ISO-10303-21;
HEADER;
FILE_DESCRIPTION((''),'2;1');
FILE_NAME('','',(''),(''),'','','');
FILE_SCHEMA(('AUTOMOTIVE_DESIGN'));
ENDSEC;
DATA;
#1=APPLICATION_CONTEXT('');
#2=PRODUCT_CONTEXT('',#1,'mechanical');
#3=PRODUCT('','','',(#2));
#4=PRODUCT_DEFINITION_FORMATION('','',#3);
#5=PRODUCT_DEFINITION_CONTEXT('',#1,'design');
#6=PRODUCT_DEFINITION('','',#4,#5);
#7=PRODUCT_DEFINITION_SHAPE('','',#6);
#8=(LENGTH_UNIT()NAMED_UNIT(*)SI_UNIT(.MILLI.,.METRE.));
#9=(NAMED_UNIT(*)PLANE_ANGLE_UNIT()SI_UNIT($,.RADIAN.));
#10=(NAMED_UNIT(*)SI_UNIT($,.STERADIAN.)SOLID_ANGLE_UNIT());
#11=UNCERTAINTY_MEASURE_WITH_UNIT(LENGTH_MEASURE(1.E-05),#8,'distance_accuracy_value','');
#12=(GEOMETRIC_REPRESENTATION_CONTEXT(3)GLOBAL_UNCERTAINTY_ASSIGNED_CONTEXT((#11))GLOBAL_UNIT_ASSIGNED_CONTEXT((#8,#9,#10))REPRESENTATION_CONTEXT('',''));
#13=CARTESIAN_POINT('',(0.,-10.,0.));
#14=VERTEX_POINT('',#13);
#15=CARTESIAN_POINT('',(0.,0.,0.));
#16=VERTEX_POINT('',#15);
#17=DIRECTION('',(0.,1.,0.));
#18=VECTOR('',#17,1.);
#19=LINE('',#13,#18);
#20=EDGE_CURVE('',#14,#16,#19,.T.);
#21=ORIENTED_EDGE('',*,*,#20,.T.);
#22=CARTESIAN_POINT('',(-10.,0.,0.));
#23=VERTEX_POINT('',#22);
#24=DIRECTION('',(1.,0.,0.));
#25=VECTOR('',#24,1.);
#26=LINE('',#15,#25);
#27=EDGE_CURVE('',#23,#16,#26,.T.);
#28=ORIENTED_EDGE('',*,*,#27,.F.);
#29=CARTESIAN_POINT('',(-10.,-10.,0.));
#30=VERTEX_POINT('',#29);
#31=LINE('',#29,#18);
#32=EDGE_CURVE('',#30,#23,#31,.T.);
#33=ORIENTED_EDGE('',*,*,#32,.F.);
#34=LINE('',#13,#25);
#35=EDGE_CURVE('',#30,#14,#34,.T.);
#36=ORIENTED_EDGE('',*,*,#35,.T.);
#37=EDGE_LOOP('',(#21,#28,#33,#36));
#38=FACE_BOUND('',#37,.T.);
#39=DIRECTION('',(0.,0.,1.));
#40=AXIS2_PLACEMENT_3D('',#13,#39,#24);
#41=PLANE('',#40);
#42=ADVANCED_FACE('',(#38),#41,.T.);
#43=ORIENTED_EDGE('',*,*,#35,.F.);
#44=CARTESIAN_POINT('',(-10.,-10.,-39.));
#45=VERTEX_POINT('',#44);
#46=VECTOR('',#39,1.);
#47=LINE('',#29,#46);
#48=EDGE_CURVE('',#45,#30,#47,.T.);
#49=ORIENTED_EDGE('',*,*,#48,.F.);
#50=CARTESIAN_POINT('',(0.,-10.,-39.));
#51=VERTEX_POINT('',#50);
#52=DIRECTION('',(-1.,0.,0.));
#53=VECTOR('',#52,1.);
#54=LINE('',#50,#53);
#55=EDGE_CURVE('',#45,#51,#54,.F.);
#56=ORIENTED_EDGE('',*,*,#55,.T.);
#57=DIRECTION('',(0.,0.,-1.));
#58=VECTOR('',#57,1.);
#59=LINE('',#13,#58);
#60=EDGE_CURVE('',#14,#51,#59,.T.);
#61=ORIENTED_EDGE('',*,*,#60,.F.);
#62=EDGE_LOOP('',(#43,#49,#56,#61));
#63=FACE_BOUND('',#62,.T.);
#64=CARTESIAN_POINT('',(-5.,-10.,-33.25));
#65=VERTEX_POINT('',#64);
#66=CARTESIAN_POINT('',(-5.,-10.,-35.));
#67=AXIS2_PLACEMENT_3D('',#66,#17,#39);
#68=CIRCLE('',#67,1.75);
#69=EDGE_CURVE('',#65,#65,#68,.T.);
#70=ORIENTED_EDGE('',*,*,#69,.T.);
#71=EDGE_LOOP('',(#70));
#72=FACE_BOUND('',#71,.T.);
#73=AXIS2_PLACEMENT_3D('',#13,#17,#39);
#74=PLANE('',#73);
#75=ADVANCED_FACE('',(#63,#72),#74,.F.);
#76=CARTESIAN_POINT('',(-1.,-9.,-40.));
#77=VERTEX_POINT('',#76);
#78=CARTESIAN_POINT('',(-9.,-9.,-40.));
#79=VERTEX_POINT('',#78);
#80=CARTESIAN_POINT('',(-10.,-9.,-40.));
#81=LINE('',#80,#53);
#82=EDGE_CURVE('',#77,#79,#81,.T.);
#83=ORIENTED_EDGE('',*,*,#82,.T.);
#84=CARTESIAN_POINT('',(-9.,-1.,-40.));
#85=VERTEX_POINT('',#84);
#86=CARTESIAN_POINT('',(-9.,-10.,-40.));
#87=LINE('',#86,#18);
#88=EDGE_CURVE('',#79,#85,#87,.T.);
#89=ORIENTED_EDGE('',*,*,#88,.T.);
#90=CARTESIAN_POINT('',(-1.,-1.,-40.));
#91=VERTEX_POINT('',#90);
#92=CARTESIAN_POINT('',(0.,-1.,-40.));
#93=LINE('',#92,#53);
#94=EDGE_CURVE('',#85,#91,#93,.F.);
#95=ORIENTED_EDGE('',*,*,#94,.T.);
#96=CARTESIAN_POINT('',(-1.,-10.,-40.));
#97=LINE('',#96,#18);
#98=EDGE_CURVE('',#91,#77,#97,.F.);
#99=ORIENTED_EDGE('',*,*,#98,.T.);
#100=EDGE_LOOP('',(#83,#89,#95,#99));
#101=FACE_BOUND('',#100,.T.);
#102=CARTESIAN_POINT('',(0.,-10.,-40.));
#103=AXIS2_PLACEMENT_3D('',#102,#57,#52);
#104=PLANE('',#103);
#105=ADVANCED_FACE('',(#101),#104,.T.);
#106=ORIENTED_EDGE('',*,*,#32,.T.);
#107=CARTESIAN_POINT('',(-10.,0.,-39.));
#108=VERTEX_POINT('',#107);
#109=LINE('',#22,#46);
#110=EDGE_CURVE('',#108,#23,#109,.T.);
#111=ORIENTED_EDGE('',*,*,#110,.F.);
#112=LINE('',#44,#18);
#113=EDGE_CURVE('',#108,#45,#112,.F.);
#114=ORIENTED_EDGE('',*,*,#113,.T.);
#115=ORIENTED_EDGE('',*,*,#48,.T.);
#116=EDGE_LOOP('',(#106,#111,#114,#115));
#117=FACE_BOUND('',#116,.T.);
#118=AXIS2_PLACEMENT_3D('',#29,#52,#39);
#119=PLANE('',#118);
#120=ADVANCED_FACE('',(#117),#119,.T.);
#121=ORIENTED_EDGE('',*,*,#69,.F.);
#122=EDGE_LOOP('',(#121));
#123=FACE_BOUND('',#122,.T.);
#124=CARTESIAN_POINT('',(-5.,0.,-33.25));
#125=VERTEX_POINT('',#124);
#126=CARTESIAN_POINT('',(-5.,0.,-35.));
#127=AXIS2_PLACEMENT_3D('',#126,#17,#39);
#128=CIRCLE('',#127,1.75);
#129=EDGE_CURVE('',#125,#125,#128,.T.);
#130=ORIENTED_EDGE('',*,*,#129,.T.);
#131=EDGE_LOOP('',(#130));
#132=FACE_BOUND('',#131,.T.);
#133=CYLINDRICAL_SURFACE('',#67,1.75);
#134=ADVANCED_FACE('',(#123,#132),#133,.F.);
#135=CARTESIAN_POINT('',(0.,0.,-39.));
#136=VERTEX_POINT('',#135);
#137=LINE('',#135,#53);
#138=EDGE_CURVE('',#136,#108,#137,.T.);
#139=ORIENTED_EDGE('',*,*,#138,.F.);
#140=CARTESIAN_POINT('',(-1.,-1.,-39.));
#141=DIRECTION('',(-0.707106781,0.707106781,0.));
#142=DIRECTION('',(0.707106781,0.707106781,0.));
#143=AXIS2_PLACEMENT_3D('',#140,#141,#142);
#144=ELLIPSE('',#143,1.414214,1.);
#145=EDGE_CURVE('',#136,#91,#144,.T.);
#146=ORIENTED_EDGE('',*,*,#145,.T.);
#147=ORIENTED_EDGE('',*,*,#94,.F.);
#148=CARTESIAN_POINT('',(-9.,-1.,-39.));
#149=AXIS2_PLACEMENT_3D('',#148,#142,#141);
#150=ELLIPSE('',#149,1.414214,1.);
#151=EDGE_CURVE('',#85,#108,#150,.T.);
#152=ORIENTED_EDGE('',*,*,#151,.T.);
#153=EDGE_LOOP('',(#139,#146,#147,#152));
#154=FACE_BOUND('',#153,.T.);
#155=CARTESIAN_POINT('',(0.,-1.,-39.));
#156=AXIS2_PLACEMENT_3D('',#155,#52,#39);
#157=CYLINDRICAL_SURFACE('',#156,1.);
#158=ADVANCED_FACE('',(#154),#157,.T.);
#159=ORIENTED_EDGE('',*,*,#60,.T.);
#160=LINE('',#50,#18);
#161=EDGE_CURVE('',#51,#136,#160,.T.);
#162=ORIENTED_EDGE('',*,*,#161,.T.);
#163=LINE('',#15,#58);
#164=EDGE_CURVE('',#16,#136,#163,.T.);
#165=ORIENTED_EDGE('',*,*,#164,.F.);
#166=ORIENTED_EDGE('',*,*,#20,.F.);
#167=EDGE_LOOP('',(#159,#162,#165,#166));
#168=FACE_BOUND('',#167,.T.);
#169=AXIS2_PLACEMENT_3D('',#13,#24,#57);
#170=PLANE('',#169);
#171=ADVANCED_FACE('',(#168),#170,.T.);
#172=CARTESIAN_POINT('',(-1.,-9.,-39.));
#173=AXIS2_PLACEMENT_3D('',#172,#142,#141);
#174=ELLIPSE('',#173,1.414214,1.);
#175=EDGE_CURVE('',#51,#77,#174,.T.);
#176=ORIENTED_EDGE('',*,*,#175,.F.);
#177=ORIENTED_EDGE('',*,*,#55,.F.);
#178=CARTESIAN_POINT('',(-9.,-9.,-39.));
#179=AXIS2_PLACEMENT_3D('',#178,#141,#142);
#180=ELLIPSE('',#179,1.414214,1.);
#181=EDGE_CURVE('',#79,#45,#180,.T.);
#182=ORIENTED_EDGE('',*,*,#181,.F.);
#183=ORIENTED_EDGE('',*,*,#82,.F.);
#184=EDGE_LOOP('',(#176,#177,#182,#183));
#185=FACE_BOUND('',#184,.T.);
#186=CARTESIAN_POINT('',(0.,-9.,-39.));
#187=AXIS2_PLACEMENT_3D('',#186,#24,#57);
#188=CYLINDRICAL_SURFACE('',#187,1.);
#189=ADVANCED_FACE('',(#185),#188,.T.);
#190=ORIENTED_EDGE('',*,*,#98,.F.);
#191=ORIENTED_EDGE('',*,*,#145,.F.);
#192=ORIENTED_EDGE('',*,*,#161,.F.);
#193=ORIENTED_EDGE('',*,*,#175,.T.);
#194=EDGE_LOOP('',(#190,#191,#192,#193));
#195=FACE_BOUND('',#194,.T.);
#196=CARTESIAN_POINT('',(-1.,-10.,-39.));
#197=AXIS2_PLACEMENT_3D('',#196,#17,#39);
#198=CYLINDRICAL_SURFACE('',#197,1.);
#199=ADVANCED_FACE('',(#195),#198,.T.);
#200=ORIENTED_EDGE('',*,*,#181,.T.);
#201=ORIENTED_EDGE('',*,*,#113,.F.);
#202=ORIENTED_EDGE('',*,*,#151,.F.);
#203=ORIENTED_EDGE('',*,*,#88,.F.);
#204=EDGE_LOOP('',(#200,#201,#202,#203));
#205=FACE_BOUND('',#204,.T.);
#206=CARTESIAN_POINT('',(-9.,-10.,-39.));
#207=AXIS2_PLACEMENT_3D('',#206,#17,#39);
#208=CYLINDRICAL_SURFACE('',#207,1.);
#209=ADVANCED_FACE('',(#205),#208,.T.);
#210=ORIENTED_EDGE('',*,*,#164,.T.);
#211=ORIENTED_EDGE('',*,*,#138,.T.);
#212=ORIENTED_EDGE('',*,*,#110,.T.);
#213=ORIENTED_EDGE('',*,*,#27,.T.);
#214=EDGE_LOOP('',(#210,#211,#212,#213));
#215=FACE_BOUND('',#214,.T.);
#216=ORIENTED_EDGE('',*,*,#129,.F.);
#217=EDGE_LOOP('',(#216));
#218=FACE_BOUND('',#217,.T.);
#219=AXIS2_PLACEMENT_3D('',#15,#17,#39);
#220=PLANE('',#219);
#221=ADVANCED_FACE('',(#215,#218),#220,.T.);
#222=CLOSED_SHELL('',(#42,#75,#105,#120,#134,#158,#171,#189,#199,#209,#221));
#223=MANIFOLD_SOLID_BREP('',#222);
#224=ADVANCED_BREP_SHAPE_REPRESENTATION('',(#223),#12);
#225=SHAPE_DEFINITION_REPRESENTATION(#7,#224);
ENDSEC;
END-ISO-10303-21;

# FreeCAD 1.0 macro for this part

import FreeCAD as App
import Part
import Sketcher
from FreeCAD import Vector
Q = App.Units.Quantity


def edges_at(feature, points):
    """Names of the edges that pass closest to the given points."""
    edges = feature.Shape.Edges
    near = lambda p: min(range(len(edges)), key=lambda i: edges[i].distToShape(Part.Vertex(*p))[0])
    return sorted({f"Edge{near(p) + 1}" for p in points})

doc = App.newDocument("Part")
body = doc.addObject("PartDesign::Body", "Body")

sketch1 = body.newObject("Sketcher::SketchObject", "Sketch")
sketch1.AttachmentSupport = (doc.getObject("XZ_Plane"), [""])
sketch1.MapMode = "FlatFace"
sketch1.addGeometry(Part.LineSegment(Vector(-10, -40, 0), Vector(-10, 0, 0)), False)
sketch1.addGeometry(Part.LineSegment(Vector(-10, 0, 0), Vector(0, 0, 0)), False)
sketch1.addGeometry(Part.LineSegment(Vector(0, 0, 0), Vector(0, -40, 0)), False)
sketch1.addGeometry(Part.LineSegment(Vector(0, -40, 0), Vector(-10, -40, 0)), False)
sketch1.addGeometry(Part.Circle(Vector(-5, -35, 0), Vector(0, 0, 1), 1.75), False)
sketch1.addConstraint(Sketcher.Constraint("Coincident", 0, 2, 1, 1))
sketch1.addConstraint(Sketcher.Constraint("Coincident", 1, 2, 2, 1))
sketch1.addConstraint(Sketcher.Constraint("Coincident", 2, 2, 3, 1))
sketch1.addConstraint(Sketcher.Constraint("Coincident", 3, 2, 0, 1))
sketch1.addConstraint(Sketcher.Constraint("Vertical", 0))
sketch1.addConstraint(Sketcher.Constraint("Horizontal", 1))
sketch1.addConstraint(Sketcher.Constraint("Vertical", 2))
sketch1.addConstraint(Sketcher.Constraint("Horizontal", 3))
sketch1.addConstraint(Sketcher.Constraint("Coincident", 1, 2, -1, 1))
sketch1.addConstraint(Sketcher.Constraint("Diameter", 4, Q("3.5 mm")))
sketch1.addConstraint(Sketcher.Constraint("DistanceX", 1, 1, 1, 2, Q("10 mm")))
sketch1.addConstraint(Sketcher.Constraint("DistanceY", 0, 1, 0, 2, Q("40 mm")))
sketch1.addConstraint(Sketcher.Constraint("DistanceX", 4, 3, -1, 1, Q("5 mm")))
sketch1.addConstraint(Sketcher.Constraint("DistanceY", 4, 3, -1, 1, Q("35 mm")))
pad1 = body.newObject("PartDesign::Pad", "Pad")
pad1.Profile = sketch1
pad1.Length = 10
doc.recompute()

fillet = body.newObject("PartDesign::Fillet", "Fillet")
fillet.Base = (pad1, edges_at(pad1, [
    (-5, 0, -40),
    (-5, -10, -40),
    (-10, -5, -40),
    (0, -5, -40),
]))
fillet.Radius = 1

doc.recompute()
